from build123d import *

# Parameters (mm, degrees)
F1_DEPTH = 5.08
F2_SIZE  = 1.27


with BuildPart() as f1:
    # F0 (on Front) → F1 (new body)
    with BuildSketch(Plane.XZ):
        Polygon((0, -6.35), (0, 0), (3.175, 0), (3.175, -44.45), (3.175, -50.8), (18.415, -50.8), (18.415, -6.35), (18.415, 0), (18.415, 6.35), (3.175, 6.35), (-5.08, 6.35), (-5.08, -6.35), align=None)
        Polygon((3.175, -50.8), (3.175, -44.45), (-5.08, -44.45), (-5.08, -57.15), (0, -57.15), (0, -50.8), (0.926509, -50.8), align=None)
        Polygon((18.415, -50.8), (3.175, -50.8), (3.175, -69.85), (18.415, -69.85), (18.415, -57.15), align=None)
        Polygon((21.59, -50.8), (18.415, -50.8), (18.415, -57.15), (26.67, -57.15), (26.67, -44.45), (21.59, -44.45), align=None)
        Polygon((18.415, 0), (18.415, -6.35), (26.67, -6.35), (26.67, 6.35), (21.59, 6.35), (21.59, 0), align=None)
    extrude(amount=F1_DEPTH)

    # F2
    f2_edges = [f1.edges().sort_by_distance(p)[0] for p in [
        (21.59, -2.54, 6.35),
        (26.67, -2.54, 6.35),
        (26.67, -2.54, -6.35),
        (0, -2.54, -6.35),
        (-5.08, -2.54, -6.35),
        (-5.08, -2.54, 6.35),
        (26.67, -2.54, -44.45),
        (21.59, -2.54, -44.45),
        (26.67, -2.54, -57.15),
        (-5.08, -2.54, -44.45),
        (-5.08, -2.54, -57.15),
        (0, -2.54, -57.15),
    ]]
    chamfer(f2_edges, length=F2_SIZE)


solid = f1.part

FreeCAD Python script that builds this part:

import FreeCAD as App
import Part
import Sketcher
Q = App.Units.Quantity


def edges_at(feature, points):
    """Names of the edges that pass closest to the given points."""
    edges = feature.Shape.Edges
    near = lambda p: min(range(len(edges)), key=lambda i: edges[i].distToShape(Part.Vertex(*p))[0])
    return sorted({f"Edge{near(p) + 1}" for p in points})

doc = App.newDocument("Part")
body = doc.addObject("PartDesign::Body", "Body")

# Sketch on XZ plane
sketch1 = body.newObject("Sketcher::SketchObject", "Sketch")
sketch1.AttachmentSupport = (doc.getObject("XZ_Plane"), [""])
sketch1.MapMode = "FlatFace"
sketch1.addGeometry(Part.LineSegment(App.Vector(0, -6.3, 0), App.Vector(0, 0, 0)), False)
sketch1.addGeometry(Part.LineSegment(App.Vector(0, 0, 0), App.Vector(3.2, 0, 0)), False)
sketch1.addGeometry(Part.LineSegment(App.Vector(3.2, 0, 0), App.Vector(3.2, -44.5, 0)), False)
sketch1.addGeometry(Part.LineSegment(App.Vector(3.2, -44.5, 0), App.Vector(-5.1, -44.5, 0)), False)
sketch1.addGeometry(Part.LineSegment(App.Vector(-5.1, -44.5, 0), App.Vector(-5.1, -57.1, 0)), False)
sketch1.addGeometry(Part.LineSegment(App.Vector(-5.1, -57.1, 0), App.Vector(0, -57.1, 0)), False)
sketch1.addGeometry(Part.LineSegment(App.Vector(0, -57.1, 0), App.Vector(0, -50.8, 0)), False)
sketch1.addGeometry(Part.LineSegment(App.Vector(0, -50.8, 0), App.Vector(3.2, -50.8, 0)), False)
sketch1.addGeometry(Part.LineSegment(App.Vector(3.2, -50.8, 0), App.Vector(3.2, -69.8, 0)), False)
sketch1.addGeometry(Part.LineSegment(App.Vector(3.2, -69.8, 0), App.Vector(18.4, -69.8, 0)), False)
sketch1.addGeometry(Part.LineSegment(App.Vector(18.4, -69.8, 0), App.Vector(18.4, -57.1, 0)), False)
sketch1.addGeometry(Part.LineSegment(App.Vector(18.4, -57.1, 0), App.Vector(26.7, -57.1, 0)), False)
sketch1.addGeometry(Part.LineSegment(App.Vector(26.7, -57.1, 0), App.Vector(26.7, -44.5, 0)), False)
sketch1.addGeometry(Part.LineSegment(App.Vector(26.7, -44.5, 0), App.Vector(21.6, -44.5, 0)), False)
sketch1.addGeometry(Part.LineSegment(App.Vector(21.6, -44.5, 0), App.Vector(21.6, -50.8, 0)), False)
sketch1.addGeometry(Part.LineSegment(App.Vector(21.6, -50.8, 0), App.Vector(18.4, -50.8, 0)), False)
sketch1.addGeometry(Part.LineSegment(App.Vector(18.4, -50.8, 0), App.Vector(18.4, -6.3, 0)), False)
sketch1.addGeometry(Part.LineSegment(App.Vector(18.4, -6.3, 0), App.Vector(26.7, -6.3, 0)), False)
sketch1.addGeometry(Part.LineSegment(App.Vector(26.7, -6.3, 0), App.Vector(26.7, 6.3, 0)), False)
sketch1.addGeometry(Part.LineSegment(App.Vector(26.7, 6.3, 0), App.Vector(21.6, 6.3, 0)), False)
sketch1.addGeometry(Part.LineSegment(App.Vector(21.6, 6.3, 0), App.Vector(21.6, 0, 0)), False)
sketch1.addGeometry(Part.LineSegment(App.Vector(21.6, 0, 0), App.Vector(18.4, 0, 0)), False)
sketch1.addGeometry(Part.LineSegment(App.Vector(18.4, 0, 0), App.Vector(18.4, 6.3, 0)), False)
sketch1.addGeometry(Part.LineSegment(App.Vector(18.4, 6.3, 0), App.Vector(-5.1, 6.3, 0)), False)
sketch1.addGeometry(Part.LineSegment(App.Vector(-5.1, 6.3, 0), App.Vector(-5.1, -6.3, 0)), False)
sketch1.addGeometry(Part.LineSegment(App.Vector(-5.1, -6.3, 0), App.Vector(0, -6.3, 0)), False)
sketch1.addConstraint(Sketcher.Constraint("Coincident", 0, 2, 1, 1))
sketch1.addConstraint(Sketcher.Constraint("Coincident", 1, 2, 2, 1))
sketch1.addConstraint(Sketcher.Constraint("Coincident", 2, 2, 3, 1))
sketch1.addConstraint(Sketcher.Constraint("Coincident", 3, 2, 4, 1))
sketch1.addConstraint(Sketcher.Constraint("Coincident", 4, 2, 5, 1))
sketch1.addConstraint(Sketcher.Constraint("Coincident", 5, 2, 6, 1))
sketch1.addConstraint(Sketcher.Constraint("Coincident", 6, 2, 7, 1))
sketch1.addConstraint(Sketcher.Constraint("Coincident", 7, 2, 8, 1))
sketch1.addConstraint(Sketcher.Constraint("Coincident", 8, 2, 9, 1))
sketch1.addConstraint(Sketcher.Constraint("Coincident", 9, 2, 10, 1))
sketch1.addConstraint(Sketcher.Constraint("Coincident", 10, 2, 11, 1))
sketch1.addConstraint(Sketcher.Constraint("Coincident", 11, 2, 12, 1))
sketch1.addConstraint(Sketcher.Constraint("Coincident", 12, 2, 13, 1))
sketch1.addConstraint(Sketcher.Constraint("Coincident", 13, 2, 14, 1))
sketch1.addConstraint(Sketcher.Constraint("Coincident", 14, 2, 15, 1))
sketch1.addConstraint(Sketcher.Constraint("Coincident", 15, 2, 16, 1))
sketch1.addConstraint(Sketcher.Constraint("Coincident", 16, 2, 17, 1))
sketch1.addConstraint(Sketcher.Constraint("Coincident", 17, 2, 18, 1))
sketch1.addConstraint(Sketcher.Constraint("Coincident", 18, 2, 19, 1))
sketch1.addConstraint(Sketcher.Constraint("Coincident", 19, 2, 20, 1))
sketch1.addConstraint(Sketcher.Constraint("Coincident", 20, 2, 21, 1))
sketch1.addConstraint(Sketcher.Constraint("Coincident", 21, 2, 22, 1))
sketch1.addConstraint(Sketcher.Constraint("Coincident", 22, 2, 23, 1))
sketch1.addConstraint(Sketcher.Constraint("Coincident", 23, 2, 24, 1))
sketch1.addConstraint(Sketcher.Constraint("Coincident", 24, 2, 25, 1))
sketch1.addConstraint(Sketcher.Constraint("Coincident", 25, 2, 0, 1))
sketch1.addConstraint(Sketcher.Constraint("Vertical", 0))
sketch1.addConstraint(Sketcher.Constraint("Horizontal", 1))
sketch1.addConstraint(Sketcher.Constraint("Vertical", 2))
sketch1.addConstraint(Sketcher.Constraint("Horizontal", 3))
sketch1.addConstraint(Sketcher.Constraint("Vertical", 4))
sketch1.addConstraint(Sketcher.Constraint("Horizontal", 5))
sketch1.addConstraint(Sketcher.Constraint("Vertical", 6))
sketch1.addConstraint(Sketcher.Constraint("Horizontal", 7))
sketch1.addConstraint(Sketcher.Constraint("Vertical", 8))
sketch1.addConstraint(Sketcher.Constraint("Horizontal", 9))
sketch1.addConstraint(Sketcher.Constraint("Vertical", 10))
sketch1.addConstraint(Sketcher.Constraint("Horizontal", 11))
sketch1.addConstraint(Sketcher.Constraint("Vertical", 12))
sketch1.addConstraint(Sketcher.Constraint("Horizontal", 13))
sketch1.addConstraint(Sketcher.Constraint("Vertical", 14))
sketch1.addConstraint(Sketcher.Constraint("Horizontal", 15))
sketch1.addConstraint(Sketcher.Constraint("Vertical", 16))
sketch1.addConstraint(Sketcher.Constraint("Horizontal", 17))
sketch1.addConstraint(Sketcher.Constraint("Vertical", 18))
sketch1.addConstraint(Sketcher.Constraint("Horizontal", 19))
sketch1.addConstraint(Sketcher.Constraint("Vertical", 20))
sketch1.addConstraint(Sketcher.Constraint("Horizontal", 21))
sketch1.addConstraint(Sketcher.Constraint("Vertical", 22))
sketch1.addConstraint(Sketcher.Constraint("Horizontal", 23))
sketch1.addConstraint(Sketcher.Constraint("Vertical", 24))
sketch1.addConstraint(Sketcher.Constraint("Horizontal", 25))
sketch1.addConstraint(Sketcher.Constraint("Coincident", 0, 2, -1, 1))
sketch1.addConstraint(Sketcher.Constraint("Symmetric", 16, 2, 22, 2, -1))
sketch1.addConstraint(Sketcher.Constraint("PointOnObject", 5, 2, -2))
sketch1.addConstraint(Sketcher.Constraint("PointOnObject", 20, 2, -1))
sketch1.addConstraint(Sketcher.Constraint("Horizontal", 5, 2, 10, 2))
sketch1.addConstraint(Sketcher.Constraint("Horizontal", 3, 2, 12, 2))
sketch1.addConstraint(Sketcher.Constraint("Horizontal", 7, 2, 14, 2))
sketch1.addConstraint(Sketcher.Constraint("Horizontal", 19, 2, 22, 2))
sketch1.addConstraint(Sketcher.Constraint("Horizontal", 17, 2, 24, 2))
sketch1.addConstraint(Sketcher.Constraint("Vertical", 2, 2, 7, 2))
sketch1.addConstraint(Sketcher.Constraint("Vertical", 10, 2, 15, 2))
sketch1.addConstraint(Sketcher.Constraint("Vertical", 12, 2, 17, 2))
sketch1.addConstraint(Sketcher.Constraint("Vertical", 14, 2, 19, 2))
sketch1.addConstraint(Sketcher.Constraint("Vertical", 4, 2, 23, 2))
sketch1.addConstraint(Sketcher.Constraint("Equal", 3, 11))
sketch1.addConstraint(Sketcher.Constraint("Equal", 5, 13))
sketch1.addConstraint(Sketcher.Constraint("Equal", 0, 6))
sketch1.addConstraint(Sketcher.Constraint("Equal", 4, 10))
sketch1.addConstraint(Sketcher.Constraint("Equal", 6, 14))
sketch1.addConstraint(Sketcher.Constraint("DistanceX", 5, 1, 5, 2, Q("0.2 in")))
sketch1.addConstraint(Sketcher.Constraint("DistanceX", 9, 1, 9, 2, Q("0.6 in")))
sketch1.addConstraint(Sketcher.Constraint("DistanceY", 4, 2, 4, 1, Q("0.5 in")))
sketch1.addConstraint(Sketcher.Constraint("DistanceY", 6, 2, -1, 1, Q("2 in")))
sketch1.addConstraint(Sketcher.Constraint("DistanceX", 1, 1, 1, 2, Q("0.125 in")))
pad1 = body.newObject("PartDesign::Pad", "Pad")
pad1.Profile = sketch1
pad1.Length = Q("0.2 in")
doc.recompute()

chamfer = body.newObject("PartDesign::Chamfer", "Chamfer")
chamfer.Base = (pad1, edges_at(pad1, [
    (21.59, -2.54, 6.35),
    (26.67, -2.54, 6.35),
    (26.67, -2.54, -6.35),
    (0, -2.54, -6.35),
    (-5.08, -2.54, -6.35),
    (-5.08, -2.54, 6.35),
    (26.67, -2.54, -44.45),
    (21.59, -2.54, -44.45),
    (26.67, -2.54, -57.15),
    (-5.08, -2.54, -44.45),
    (-5.08, -2.54, -57.15),
    (0, -2.54, -57.15),
]))
chamfer.Size = Q("0.05 in")

doc.recompute()
